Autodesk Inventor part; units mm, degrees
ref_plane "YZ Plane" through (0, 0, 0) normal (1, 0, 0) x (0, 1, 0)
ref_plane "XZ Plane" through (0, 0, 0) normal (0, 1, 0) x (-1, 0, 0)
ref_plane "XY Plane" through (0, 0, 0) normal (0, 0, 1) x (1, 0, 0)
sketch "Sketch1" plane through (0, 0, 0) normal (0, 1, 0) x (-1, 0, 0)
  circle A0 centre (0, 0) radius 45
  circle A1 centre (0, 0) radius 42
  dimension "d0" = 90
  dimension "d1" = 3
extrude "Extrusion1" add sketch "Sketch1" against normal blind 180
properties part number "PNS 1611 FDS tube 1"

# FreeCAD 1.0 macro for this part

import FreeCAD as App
import Part
import Sketcher

V = App.Vector
Q = App.Units.Quantity

doc = App.newDocument("Part")
body = doc.addObject("PartDesign::Body", "Body")

sketch1 = body.newObject("Sketcher::SketchObject", "Sketch")
sketch1.AttachmentSupport = (doc.getObject("XZ_Plane"), [""])
sketch1.MapMode = "FlatFace"
sketch1.addGeometry([
    Part.Circle(V(0, 0, 0), V(0, 0, 1), 45),
    Part.Circle(V(0, 0, 0), V(0, 0, 1), 42),
], False)
sketch1.addConstraint([
    Sketcher.Constraint("Coincident", 0, 3, -1, 1),
    Sketcher.Constraint("Coincident", 1, 3, -1, 1),
    Sketcher.Constraint("Diameter", 0, Q("90 mm")),
    Sketcher.Constraint("Diameter", 1, Q("84 mm")),
])
pad1 = body.newObject("PartDesign::Pad", "Pad")
pad1.Profile = sketch1
pad1.Length = 180

doc.recompute()
